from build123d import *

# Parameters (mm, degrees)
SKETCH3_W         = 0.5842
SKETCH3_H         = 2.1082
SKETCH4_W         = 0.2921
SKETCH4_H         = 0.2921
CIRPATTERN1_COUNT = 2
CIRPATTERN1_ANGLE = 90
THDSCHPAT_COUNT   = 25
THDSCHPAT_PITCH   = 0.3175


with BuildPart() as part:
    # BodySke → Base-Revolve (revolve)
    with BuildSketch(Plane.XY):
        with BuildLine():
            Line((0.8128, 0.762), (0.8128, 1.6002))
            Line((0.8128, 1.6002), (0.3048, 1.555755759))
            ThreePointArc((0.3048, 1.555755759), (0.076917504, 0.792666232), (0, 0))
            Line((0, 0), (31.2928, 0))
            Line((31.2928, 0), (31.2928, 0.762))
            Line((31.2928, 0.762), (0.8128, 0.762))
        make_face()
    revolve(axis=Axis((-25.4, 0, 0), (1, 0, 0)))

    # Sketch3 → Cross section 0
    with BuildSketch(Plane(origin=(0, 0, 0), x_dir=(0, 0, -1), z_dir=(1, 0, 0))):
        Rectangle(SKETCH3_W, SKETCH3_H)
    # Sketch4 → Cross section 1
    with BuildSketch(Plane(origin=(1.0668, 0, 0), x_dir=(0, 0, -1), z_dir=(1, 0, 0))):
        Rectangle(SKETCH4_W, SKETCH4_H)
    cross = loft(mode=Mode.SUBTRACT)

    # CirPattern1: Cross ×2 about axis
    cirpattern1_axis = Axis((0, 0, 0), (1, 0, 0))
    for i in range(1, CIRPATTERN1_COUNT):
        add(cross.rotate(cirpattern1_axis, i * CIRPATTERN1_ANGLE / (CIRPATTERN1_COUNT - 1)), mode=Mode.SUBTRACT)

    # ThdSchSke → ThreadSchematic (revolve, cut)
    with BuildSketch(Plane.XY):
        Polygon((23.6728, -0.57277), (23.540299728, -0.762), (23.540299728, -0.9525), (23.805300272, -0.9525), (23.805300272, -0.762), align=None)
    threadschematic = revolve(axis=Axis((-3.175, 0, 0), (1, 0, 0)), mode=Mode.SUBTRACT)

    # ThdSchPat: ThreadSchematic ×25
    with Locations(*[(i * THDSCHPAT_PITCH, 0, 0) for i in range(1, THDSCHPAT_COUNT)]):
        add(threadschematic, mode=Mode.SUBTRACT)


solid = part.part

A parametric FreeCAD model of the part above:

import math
import FreeCAD as App
import Part
import Sketcher
Q = App.Units.Quantity

doc = App.newDocument("Part")
params = doc.addObject("Spreadsheet::Sheet", "Params")
for row, (alias, value) in enumerate([
    ("sketch1_width", "1.2 in"),
    ("sketch1_height", "0.03 in"),
    ("sketch1_width2", "1.232 in"),
    ("sketch1_height2", "0.033 in"),
    ("revolution_angle", "360 deg"),
    ("sketch2_width", "0.083 in"),
    ("sketch2_height", "0.023 in"),
    ("groove_angle", "360 deg"),
    ("linearpattern_pitch", "0.0125 in"),
], start=1):
    params.set(f"A{row}", alias)
    params.set(f"B{row}", "=" + value)
    params.setAlias(f"B{row}", alias)

body = doc.addObject("PartDesign::Body", "Body")

sketch1 = doc.addObject("Sketcher::SketchObject", "Sketch")
body.addObject(sketch1)
sketch1.AttachmentSupport = (doc.XY_Plane, [""])
sketch1.MapMode = "FlatFace"
sketch1.addGeometry([
    Part.LineSegment(App.Vector(0.8128, 0.762, 0), App.Vector(0.8128, 1.6002, 0)),
    Part.LineSegment(App.Vector(0.8128, 1.6002, 0), App.Vector(0.3048, 1.555756, 0)),
    Part.ArcOfCircle(Part.Circle(App.Vector(4.122833, 0, 0), App.Vector(0, 0, 1), 4.122833), math.radians(157.830297), math.radians(180)),
    Part.LineSegment(App.Vector(0, 0, 0), App.Vector(31.2928, 0, 0)),
    Part.LineSegment(App.Vector(31.2928, 0, 0), App.Vector(31.2928, 0.762, 0)),
    Part.LineSegment(App.Vector(31.2928, 0.762, 0), App.Vector(0.8128, 0.762, 0)),
], False)
sketch1.addConstraint([
    Sketcher.Constraint("Coincident", 0, 2, 1, 1),
    Sketcher.Constraint("Coincident", 1, 2, 2, 1),
    Sketcher.Constraint("Coincident", 2, 2, 3, 1),
    Sketcher.Constraint("Coincident", 3, 2, 4, 1),
    Sketcher.Constraint("Coincident", 4, 2, 5, 1),
    Sketcher.Constraint("Coincident", 5, 2, 0, 1),
    Sketcher.Constraint("Vertical", 0),
    Sketcher.Constraint("Horizontal", 3),
    Sketcher.Constraint("Vertical", 4),
    Sketcher.Constraint("Horizontal", 5),
    Sketcher.Constraint("Coincident", 2, 2, -1, 1),
    Sketcher.Constraint("PointOnObject", 2, 3, -1),
    Sketcher.Constraint("DistanceX", 5, 2, 5, 1, Q("1.2 in")),
    Sketcher.Constraint("Angle", 1, Q("-175 deg")),
    Sketcher.Constraint("DistanceY", 4, 1, 4, 2, Q("0.03 in")),
    Sketcher.Constraint("DistanceX", 3, 1, 3, 2, Q("1.232 in")),
    Sketcher.Constraint("DistanceY", 0, 1, 0, 2, Q("0.033 in")),
    Sketcher.Constraint("DistanceX", 1, 2, 0, 2, Q("0.02 in")),
])
sketch1.setExpression("Constraints[12]", "Params.sketch1_width")
sketch1.setExpression("Constraints[14]", "Params.sketch1_height")
sketch1.setExpression("Constraints[15]", "Params.sketch1_width2")
sketch1.setExpression("Constraints[16]", "Params.sketch1_height2")
revolution = doc.addObject("PartDesign::Revolution", "Revolution")
body.addObject(revolution)
revolution.Profile = sketch1
revolution.ReferenceAxis = (sketch1, ["H_Axis"])
revolution.setExpression("Angle", "Params.revolution_angle")

sketch2 = doc.addObject("Sketcher::SketchObject", "Sketch001")
body.addObject(sketch2)
sketch2.AttachmentSupport = (doc.YZ_Plane, [""])
sketch2.MapMode = "FlatFace"
sketch2.addGeometry([
    Part.LineSegment(App.Vector(1.0541, 0.2921, 0), App.Vector(-1.0541, 0.2921, 0)),
    Part.LineSegment(App.Vector(-1.0541, 0.2921, 0), App.Vector(-1.0541, -0.2921, 0)),
    Part.LineSegment(App.Vector(-1.0541, -0.2921, 0), App.Vector(1.0541, -0.2921, 0)),
    Part.LineSegment(App.Vector(1.0541, -0.2921, 0), App.Vector(1.0541, 0.2921, 0)),
], False)
sketch2.addConstraint([
    Sketcher.Constraint("Coincident", 0, 2, 1, 1),
    Sketcher.Constraint("Coincident", 1, 2, 2, 1),
    Sketcher.Constraint("Coincident", 2, 2, 3, 1),
    Sketcher.Constraint("Coincident", 3, 2, 0, 1),
    Sketcher.Constraint("Horizontal", 0),
    Sketcher.Constraint("Vertical", 1),
    Sketcher.Constraint("Horizontal", 2),
    Sketcher.Constraint("Vertical", 3),
    Sketcher.Constraint("Symmetric", 0, 2, 2, 2, -1, 1),
    Sketcher.Constraint("DistanceX", 0, 2, 0, 1, Q("0.083 in")),
    Sketcher.Constraint("DistanceY", 1, 2, 1, 1, Q("0.023 in")),
])
sketch2.setExpression("Constraints[9]", "Params.sketch2_width")
sketch2.setExpression("Constraints[10]", "Params.sketch2_height")

sketch3 = doc.addObject("Sketcher::SketchObject", "Sketch002")
body.addObject(sketch3)
sketch3.AttachmentSupport = (doc.YZ_Plane, [""])
sketch3.MapMode = "FlatFace"
sketch3.AttachmentOffset = App.Placement(App.Vector(0, 0, 0.042 * 25.4), App.Rotation())
sketch3.addGeometry([
    Part.LineSegment(App.Vector(0.14605, 0.14605, 0), App.Vector(-0.14605, 0.14605, 0)),
    Part.LineSegment(App.Vector(-0.14605, 0.14605, 0), App.Vector(-0.14605, -0.14605, 0)),
    Part.LineSegment(App.Vector(-0.14605, -0.14605, 0), App.Vector(0.14605, -0.14605, 0)),
    Part.LineSegment(App.Vector(0.14605, -0.14605, 0), App.Vector(0.14605, 0.14605, 0)),
], False)
sketch3.addConstraint([
    Sketcher.Constraint("Coincident", 0, 2, 1, 1),
    Sketcher.Constraint("Coincident", 1, 2, 2, 1),
    Sketcher.Constraint("Coincident", 2, 2, 3, 1),
    Sketcher.Constraint("Coincident", 3, 2, 0, 1),
    Sketcher.Constraint("Horizontal", 0),
    Sketcher.Constraint("Vertical", 1),
    Sketcher.Constraint("Horizontal", 2),
    Sketcher.Constraint("Vertical", 3),
    Sketcher.Constraint("Symmetric", 0, 2, 2, 2, -1, 1),
    Sketcher.Constraint("Equal", 2, 1),
    Sketcher.Constraint("DistanceX", 0, 2, 0, 1, Q("0.0115 in")),
])

subtractiveloft = doc.addObject("PartDesign::SubtractiveLoft", "SubtractiveLoft")
body.addObject(subtractiveloft)
subtractiveloft.Profile = sketch2
subtractiveloft.Sections = [sketch3]
doc.recompute()

polarpattern = doc.addObject("PartDesign::PolarPattern", "PolarPattern")
body.addObject(polarpattern)
polarpattern.Originals = [subtractiveloft]
polarpattern.Axis = (doc.X_Axis, [""])
polarpattern.Angle = 90
polarpattern.Occurrences = 2
body.Tip = polarpattern

sketch4 = doc.addObject("Sketcher::SketchObject", "Sketch003")
body.addObject(sketch4)
sketch4.AttachmentSupport = (doc.XY_Plane, [""])
sketch4.MapMode = "FlatFace"
sketch4.addGeometry([
    Part.LineSegment(App.Vector(23.6728, -0.57277, 0), App.Vector(23.5403, -0.762, 0)),
    Part.LineSegment(App.Vector(23.5403, -0.762, 0), App.Vector(23.5403, -0.9525, 0)),
    Part.LineSegment(App.Vector(23.5403, -0.9525, 0), App.Vector(23.8053, -0.9525, 0)),
    Part.LineSegment(App.Vector(23.8053, -0.9525, 0), App.Vector(23.8053, -0.762, 0)),
    Part.LineSegment(App.Vector(23.8053, -0.762, 0), App.Vector(23.6728, -0.57277, 0)),
], False)
sketch4.addConstraint([
    Sketcher.Constraint("Coincident", 0, 2, 1, 1),
    Sketcher.Constraint("Coincident", 1, 2, 2, 1),
    Sketcher.Constraint("Coincident", 2, 2, 3, 1),
    Sketcher.Constraint("Coincident", 3, 2, 4, 1),
    Sketcher.Constraint("Coincident", 4, 2, 0, 1),
    Sketcher.Constraint("Vertical", 1),
    Sketcher.Constraint("Horizontal", 2),
    Sketcher.Constraint("Vertical", 3),
    Sketcher.Constraint("Horizontal", 0, 2, 3, 2),
    Sketcher.Constraint("Equal", 0, 4),
    Sketcher.Constraint("Angle", 0, Q("-125 deg")),
    Sketcher.Constraint("DistanceY", 0, 2, -1, 1, Q("0.03 in")),
    Sketcher.Constraint("DistanceY", 1, 2, 1, 1, Q("0.0075 in")),
    Sketcher.Constraint("DistanceX", -1, 1, 4, 2, Q("0.932 in")),
    Sketcher.Constraint("DistanceX", 2, 1, 2, 2, 0.265001),
])
groove = doc.addObject("PartDesign::Groove", "Groove")
body.addObject(groove)
groove.Profile = sketch4
groove.ReferenceAxis = (sketch4, ["H_Axis"])
groove.setExpression("Angle", "Params.groove_angle")
doc.recompute()

linearpattern = doc.addObject("PartDesign::LinearPattern", "LinearPattern")
body.addObject(linearpattern)
linearpattern.Originals = [groove]
linearpattern.Direction = (doc.X_Axis, [""])
linearpattern.Mode = "offset"
linearpattern.setExpression("Offset", "Params.linearpattern_pitch")
linearpattern.Occurrences = 25
body.Tip = linearpattern

doc.recompute()
